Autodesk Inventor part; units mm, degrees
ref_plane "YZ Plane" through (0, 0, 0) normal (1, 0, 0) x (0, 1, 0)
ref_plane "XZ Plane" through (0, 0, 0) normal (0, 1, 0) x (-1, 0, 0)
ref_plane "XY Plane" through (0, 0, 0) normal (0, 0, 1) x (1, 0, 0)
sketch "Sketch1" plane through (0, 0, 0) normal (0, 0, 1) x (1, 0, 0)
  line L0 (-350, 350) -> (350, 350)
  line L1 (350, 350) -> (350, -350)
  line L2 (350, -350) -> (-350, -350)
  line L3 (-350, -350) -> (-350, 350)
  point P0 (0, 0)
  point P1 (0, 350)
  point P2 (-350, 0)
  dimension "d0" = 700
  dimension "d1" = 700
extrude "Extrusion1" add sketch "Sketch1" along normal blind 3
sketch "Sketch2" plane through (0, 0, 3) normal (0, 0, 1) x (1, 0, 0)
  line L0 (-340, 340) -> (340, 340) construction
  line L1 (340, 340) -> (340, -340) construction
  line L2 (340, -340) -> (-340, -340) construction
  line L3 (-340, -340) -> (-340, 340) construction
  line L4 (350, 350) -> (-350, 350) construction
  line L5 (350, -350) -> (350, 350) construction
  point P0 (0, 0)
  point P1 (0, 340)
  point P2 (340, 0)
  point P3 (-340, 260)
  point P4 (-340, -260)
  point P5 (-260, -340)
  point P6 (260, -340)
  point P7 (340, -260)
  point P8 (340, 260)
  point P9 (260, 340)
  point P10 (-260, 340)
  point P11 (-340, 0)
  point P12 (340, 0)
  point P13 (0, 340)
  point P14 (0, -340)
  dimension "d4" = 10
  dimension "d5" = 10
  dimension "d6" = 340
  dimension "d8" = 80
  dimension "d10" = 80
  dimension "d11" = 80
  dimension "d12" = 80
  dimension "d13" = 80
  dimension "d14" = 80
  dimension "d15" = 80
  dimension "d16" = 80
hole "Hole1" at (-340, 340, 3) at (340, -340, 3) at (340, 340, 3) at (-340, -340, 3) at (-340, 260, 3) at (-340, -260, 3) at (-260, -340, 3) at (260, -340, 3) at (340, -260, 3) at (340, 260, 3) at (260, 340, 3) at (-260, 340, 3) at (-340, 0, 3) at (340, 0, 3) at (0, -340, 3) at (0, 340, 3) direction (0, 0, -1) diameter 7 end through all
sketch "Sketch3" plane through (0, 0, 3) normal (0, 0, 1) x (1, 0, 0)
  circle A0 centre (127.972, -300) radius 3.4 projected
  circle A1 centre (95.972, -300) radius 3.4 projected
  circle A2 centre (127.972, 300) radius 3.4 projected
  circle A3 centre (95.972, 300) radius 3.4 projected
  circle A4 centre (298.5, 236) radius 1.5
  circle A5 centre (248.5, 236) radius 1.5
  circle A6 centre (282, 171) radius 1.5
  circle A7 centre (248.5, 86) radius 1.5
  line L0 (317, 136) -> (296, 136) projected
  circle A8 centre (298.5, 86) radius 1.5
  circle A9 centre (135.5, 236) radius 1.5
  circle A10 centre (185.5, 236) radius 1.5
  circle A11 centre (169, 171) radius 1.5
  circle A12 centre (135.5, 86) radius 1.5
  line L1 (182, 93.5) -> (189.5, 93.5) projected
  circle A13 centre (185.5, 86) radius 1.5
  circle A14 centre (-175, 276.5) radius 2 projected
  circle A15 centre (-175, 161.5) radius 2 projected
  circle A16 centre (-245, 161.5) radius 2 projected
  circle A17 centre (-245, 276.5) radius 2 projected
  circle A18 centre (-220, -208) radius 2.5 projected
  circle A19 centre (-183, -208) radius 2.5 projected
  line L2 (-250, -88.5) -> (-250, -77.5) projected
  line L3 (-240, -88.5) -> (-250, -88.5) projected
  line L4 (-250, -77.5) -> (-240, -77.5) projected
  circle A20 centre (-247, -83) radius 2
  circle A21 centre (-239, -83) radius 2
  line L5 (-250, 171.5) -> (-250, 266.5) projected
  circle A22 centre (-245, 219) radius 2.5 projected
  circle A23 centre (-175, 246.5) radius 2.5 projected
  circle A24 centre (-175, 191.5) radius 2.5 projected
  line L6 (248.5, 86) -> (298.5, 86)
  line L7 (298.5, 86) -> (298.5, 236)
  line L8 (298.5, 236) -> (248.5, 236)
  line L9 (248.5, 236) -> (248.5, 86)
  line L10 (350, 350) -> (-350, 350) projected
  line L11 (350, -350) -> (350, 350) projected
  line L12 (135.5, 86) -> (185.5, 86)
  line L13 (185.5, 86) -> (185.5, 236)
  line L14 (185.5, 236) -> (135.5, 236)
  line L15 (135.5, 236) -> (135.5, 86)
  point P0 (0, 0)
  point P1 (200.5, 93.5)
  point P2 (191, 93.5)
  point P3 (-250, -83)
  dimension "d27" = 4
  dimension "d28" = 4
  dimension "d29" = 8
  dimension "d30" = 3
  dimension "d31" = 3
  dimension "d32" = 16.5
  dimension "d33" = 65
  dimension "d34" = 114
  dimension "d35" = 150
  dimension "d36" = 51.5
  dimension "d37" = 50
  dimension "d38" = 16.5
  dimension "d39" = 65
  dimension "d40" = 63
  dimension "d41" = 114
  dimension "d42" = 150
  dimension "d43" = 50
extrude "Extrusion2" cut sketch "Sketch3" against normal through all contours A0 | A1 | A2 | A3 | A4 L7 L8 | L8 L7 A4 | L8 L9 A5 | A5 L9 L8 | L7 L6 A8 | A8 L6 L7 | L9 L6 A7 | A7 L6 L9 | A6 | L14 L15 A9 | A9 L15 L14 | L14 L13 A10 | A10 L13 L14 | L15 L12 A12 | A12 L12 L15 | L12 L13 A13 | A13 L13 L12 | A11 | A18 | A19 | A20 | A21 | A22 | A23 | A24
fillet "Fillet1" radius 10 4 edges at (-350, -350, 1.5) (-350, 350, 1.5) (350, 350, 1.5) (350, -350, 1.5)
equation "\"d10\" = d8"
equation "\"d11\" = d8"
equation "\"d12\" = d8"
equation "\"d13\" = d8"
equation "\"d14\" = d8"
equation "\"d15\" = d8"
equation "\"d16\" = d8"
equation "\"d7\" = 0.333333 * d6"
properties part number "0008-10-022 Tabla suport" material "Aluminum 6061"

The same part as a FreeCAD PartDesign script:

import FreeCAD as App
import Part
import Sketcher
from FreeCAD import Vector
Q = App.Units.Quantity


def edges_at(feature, points):
    """Names of the edges that pass closest to the given points."""
    edges = feature.Shape.Edges
    near = lambda p: min(range(len(edges)), key=lambda i: edges[i].distToShape(Part.Vertex(*p))[0])
    return sorted({f"Edge{near(p) + 1}" for p in points})


def add_polygon(sketch, points):
    """Adds a closed chain of lines whose ends are joined by coincident constraints."""
    first, n = sketch.GeometryCount, len(points)
    for a, b in zip(points, points[1:] + points[:1]):
        sketch.addGeometry(Part.LineSegment(App.Vector(*a, 0), App.Vector(*b, 0)), False)
    for i in range(n):
        sketch.addConstraint(Sketcher.Constraint("Coincident", first + i, 2, first + (i + 1) % n, 1))

doc = App.newDocument("Part")
params = doc.addObject("Spreadsheet::Sheet", "Params")
for row, (alias, value) in enumerate([
    ("sketch1_width", "700 mm"),
    ("pad1_length", "3 mm"),
    ("sketch2_diameter", "7 mm"),
    ("hole_diameter", "7 mm"),
    ("sketch3_diameter", "3 mm"),
    ("sketch3_diameter2", "4 mm"),
    ("sketch3_diameter3", "5 mm"),
    ("sketch3_diameter4", "6.8 mm"),
    ("fillet_radius", "10 mm"),
], start=1):
    params.set(f"A{row}", alias)
    params.set(f"B{row}", "=" + value)
    params.setAlias(f"B{row}", alias)

body = doc.addObject("PartDesign::Body", "Body")

# Sketch on XY plane
sketch1 = doc.addObject("Sketcher::SketchObject", "Sketch")
body.addObject(sketch1)
sketch1.AttachmentSupport = (doc.XY_Plane, [""])
sketch1.MapMode = "FlatFace"
add_polygon(sketch1, [(350, 350), (-350, 350), (-350, -350), (350, -350)])  # lines 0-3
sketch1.addConstraint([
    Sketcher.Constraint("Horizontal", 0),
    Sketcher.Constraint("Vertical", 1),
    Sketcher.Constraint("Horizontal", 2),
    Sketcher.Constraint("Vertical", 3),
    Sketcher.Constraint("Symmetric", 0, 2, 2, 2, -1, 1),
    Sketcher.Constraint("Equal", 2, 1),
    Sketcher.Constraint("DistanceX", 0, 2, 0, 1, Q("700 mm")),
])
sketch1.setExpression("Constraints[10]", "Params.sketch1_width")
pad1 = doc.addObject("PartDesign::Pad", "Pad")
body.addObject(pad1)
pad1.Profile = sketch1
pad1.setExpression("Length", "Params.pad1_length")

# Sketch on XY plane
sketch2 = doc.addObject("Sketcher::SketchObject", "Sketch001")
body.addObject(sketch2)
sketch2.AttachmentSupport = (doc.XY_Plane, [""])
sketch2.MapMode = "FlatFace"
sketch2.AttachmentOffset = App.Placement(Vector(0, 0, 3), App.Rotation())
sketch2.addGeometry([
    Part.Circle(Vector(-340, 340, 0), Vector(0, 0, 1), 3.5),  # 0
    Part.Circle(Vector(340, -340, 0), Vector(0, 0, 1), 3.5),  # 1
    Part.Circle(Vector(340, 340, 0), Vector(0, 0, 1), 3.5),  # 2
    Part.Circle(Vector(-340, -340, 0), Vector(0, 0, 1), 3.5),  # 3
    Part.Circle(Vector(-340, 260, 0), Vector(0, 0, 1), 3.5),  # 4
    Part.Circle(Vector(-340, -260, 0), Vector(0, 0, 1), 3.5),  # 5
    Part.Circle(Vector(-260, -340, 0), Vector(0, 0, 1), 3.5),  # 6
    Part.Circle(Vector(260, -340, 0), Vector(0, 0, 1), 3.5),  # 7
    Part.Circle(Vector(340, -260, 0), Vector(0, 0, 1), 3.5),  # 8
    Part.Circle(Vector(340, 260, 0), Vector(0, 0, 1), 3.5),  # 9
    Part.Circle(Vector(260, 340, 0), Vector(0, 0, 1), 3.5),  # 10
    Part.Circle(Vector(-260, 340, 0), Vector(0, 0, 1), 3.5),  # 11
    Part.Circle(Vector(-340, 0, 0), Vector(0, 0, 1), 3.5),  # 12
    Part.Circle(Vector(340, 0, 0), Vector(0, 0, 1), 3.5),  # 13
    Part.Circle(Vector(0, -340, 0), Vector(0, 0, 1), 3.5),  # 14
    Part.Circle(Vector(0, 340, 0), Vector(0, 0, 1), 3.5),  # 15
], False)
sketch2.addConstraint([
    Sketcher.Constraint("Equal", 0, 1),
    Sketcher.Constraint("Equal", 1, 2),
    Sketcher.Constraint("Equal", 2, 3),
    Sketcher.Constraint("Equal", 3, 4),
    Sketcher.Constraint("Equal", 4, 5),
    Sketcher.Constraint("Equal", 5, 6),
    Sketcher.Constraint("Equal", 6, 7),
    Sketcher.Constraint("Equal", 7, 8),
    Sketcher.Constraint("Equal", 8, 9),
    Sketcher.Constraint("Equal", 9, 10),
    Sketcher.Constraint("Equal", 10, 11),
    Sketcher.Constraint("Equal", 11, 12),
    Sketcher.Constraint("Equal", 12, 13),
    Sketcher.Constraint("Equal", 13, 14),
    Sketcher.Constraint("Equal", 14, 15),
    Sketcher.Constraint("Symmetric", 0, 3, 1, 3, -1, 1),
    Sketcher.Constraint("Symmetric", 2, 3, 3, 3, -1, 1),
    Sketcher.Constraint("Symmetric", 4, 3, 8, 3, -1, 1),
    Sketcher.Constraint("Symmetric", 5, 3, 9, 3, -1, 1),
    Sketcher.Constraint("Symmetric", 6, 3, 10, 3, -1, 1),
    Sketcher.Constraint("Symmetric", 7, 3, 11, 3, -1, 1),
    Sketcher.Constraint("Symmetric", 12, 3, 13, 3, -1, 1),
    Sketcher.Constraint("Symmetric", 14, 3, 15, 3, -1, 1),
    Sketcher.Constraint("Symmetric", 0, 3, 2, 3, -2),
    Sketcher.Constraint("Symmetric", 6, 3, 7, 3, -2),
    Sketcher.Constraint("Symmetric", 5, 3, 8, 3, -2),
    Sketcher.Constraint("PointOnObject", 12, 3, -1),
    Sketcher.Constraint("PointOnObject", 14, 3, -2),
    Sketcher.Constraint("Horizontal", 3, 3, 6, 3),
    Sketcher.Constraint("Horizontal", 7, 3, 14, 3),
    Sketcher.Constraint("Vertical", 3, 3, 4, 3),
    Sketcher.Constraint("Vertical", 5, 3, 12, 3),
    Sketcher.Constraint("Diameter", 0, Q("7 mm")),
    Sketcher.Constraint("DistanceX", 0, 3, -1, 1, Q("340 mm")),
    Sketcher.Constraint("DistanceY", -1, 1, 0, 3, Q("340 mm")),
    Sketcher.Constraint("DistanceY", -1, 1, 4, 3, Q("260 mm")),
    Sketcher.Constraint("DistanceX", 6, 3, -1, 1, Q("260 mm")),
])
sketch2.setExpression("Constraints[32]", "Params.sketch2_diameter")
doc.recompute()
hole = doc.addObject("PartDesign::Hole", "Hole")
body.addObject(hole)
hole.Profile = sketch2
hole.ThreadType = "None"
hole.setExpression("Diameter", "Params.hole_diameter")
hole.DepthType = "ThroughAll"

# Sketch on XY plane
sketch3 = doc.addObject("Sketcher::SketchObject", "Sketch002")
body.addObject(sketch3)
sketch3.AttachmentSupport = (doc.XY_Plane, [""])
sketch3.MapMode = "FlatFace"
sketch3.AttachmentOffset = App.Placement(Vector(0, 0, 3), App.Rotation())
sketch3.addGeometry([
    Part.Circle(Vector(128, -300, 0), Vector(0, 0, 1), 3.4),  # 0
    Part.Circle(Vector(96, -300, 0), Vector(0, 0, 1), 3.4),  # 1
    Part.Circle(Vector(128, 300, 0), Vector(0, 0, 1), 3.4),  # 2
    Part.Circle(Vector(96, 300, 0), Vector(0, 0, 1), 3.4),  # 3
    Part.Circle(Vector(298.5, 236, 0), Vector(0, 0, 1), 1.5),  # 4
    Part.Circle(Vector(248.5, 236, 0), Vector(0, 0, 1), 1.5),  # 5
    Part.Circle(Vector(298.5, 86, 0), Vector(0, 0, 1), 1.5),  # 6
    Part.Circle(Vector(248.5, 86, 0), Vector(0, 0, 1), 1.5),  # 7
    Part.Circle(Vector(282, 171, 0), Vector(0, 0, 1), 1.5),  # 8
    Part.Circle(Vector(135.5, 236, 0), Vector(0, 0, 1), 1.5),  # 9
    Part.Circle(Vector(185.5, 236, 0), Vector(0, 0, 1), 1.5),  # 10
    Part.Circle(Vector(135.5, 86, 0), Vector(0, 0, 1), 1.5),  # 11
    Part.Circle(Vector(185.5, 86, 0), Vector(0, 0, 1), 1.5),  # 12
    Part.Circle(Vector(169, 171, 0), Vector(0, 0, 1), 1.5),  # 13
    Part.Circle(Vector(-220, -208, 0), Vector(0, 0, 1), 2.5),  # 14
    Part.Circle(Vector(-183, -208, 0), Vector(0, 0, 1), 2.5),  # 15
    Part.Circle(Vector(-247, -83, 0), Vector(0, 0, 1), 2),  # 16
    Part.Circle(Vector(-239, -83, 0), Vector(0, 0, 1), 2),  # 17
    Part.Circle(Vector(-245, 219, 0), Vector(0, 0, 1), 2.5),  # 18
    Part.Circle(Vector(-175, 246.5, 0), Vector(0, 0, 1), 2.5),  # 19
    Part.Circle(Vector(-175, 191.5, 0), Vector(0, 0, 1), 2.5),  # 20
], False)
sketch3.addConstraint([
    Sketcher.Constraint("Equal", 0, 1),
    Sketcher.Constraint("Equal", 1, 2),
    Sketcher.Constraint("Equal", 2, 3),
    Sketcher.Constraint("Equal", 4, 5),
    Sketcher.Constraint("Equal", 5, 6),
    Sketcher.Constraint("Equal", 6, 7),
    Sketcher.Constraint("Equal", 7, 8),
    Sketcher.Constraint("Equal", 8, 9),
    Sketcher.Constraint("Equal", 9, 10),
    Sketcher.Constraint("Equal", 10, 11),
    Sketcher.Constraint("Equal", 11, 12),
    Sketcher.Constraint("Equal", 12, 13),
    Sketcher.Constraint("Equal", 14, 15),
    Sketcher.Constraint("Equal", 16, 17),
    Sketcher.Constraint("Equal", 15, 18),
    Sketcher.Constraint("Equal", 18, 19),
    Sketcher.Constraint("Equal", 19, 20),
    Sketcher.Constraint("Symmetric", 0, 3, 2, 3, -1),
    Sketcher.Constraint("Symmetric", 1, 3, 3, 3, -1),
    Sketcher.Constraint("Horizontal", 0, 3, 1, 3),
    Sketcher.Constraint("Horizontal", 4, 3, 5, 3),
    Sketcher.Constraint("Horizontal", 6, 3, 7, 3),
    Sketcher.Constraint("Horizontal", 5, 3, 9, 3),
    Sketcher.Constraint("Horizontal", 9, 3, 10, 3),
    Sketcher.Constraint("Horizontal", 7, 3, 11, 3),
    Sketcher.Constraint("Horizontal", 11, 3, 12, 3),
    Sketcher.Constraint("Horizontal", 8, 3, 13, 3),
    Sketcher.Constraint("Horizontal", 14, 3, 15, 3),
    Sketcher.Constraint("Horizontal", 16, 3, 17, 3),
    Sketcher.Constraint("Vertical", 4, 3, 6, 3),
    Sketcher.Constraint("Vertical", 5, 3, 7, 3),
    Sketcher.Constraint("Vertical", 9, 3, 11, 3),
    Sketcher.Constraint("Vertical", 10, 3, 12, 3),
    Sketcher.Constraint("Vertical", 19, 3, 20, 3),
    Sketcher.Constraint("Diameter", 4, Q("3 mm")),
    Sketcher.Constraint("Diameter", 16, Q("4 mm")),
    Sketcher.Constraint("Diameter", 14, Q("5 mm")),
    Sketcher.Constraint("DistanceX", 5, 3, 4, 3, Q("50 mm")),
    Sketcher.Constraint("DistanceY", 6, 3, 4, 3, Q("150 mm")),
    Sketcher.Constraint("DistanceY", 8, 3, 4, 3, Q("65 mm")),
    Sketcher.Constraint("DistanceX", 9, 3, 10, 3, Q("50 mm")),
    Sketcher.Constraint("DistanceX", 10, 3, 5, 3, Q("63 mm")),
    Sketcher.Constraint("DistanceX", 16, 3, 17, 3, Q("8 mm")),
    Sketcher.Constraint("Diameter", 0, Q("6.8 mm")),
    Sketcher.Constraint("DistanceX", 8, 3, 4, 3, Q("16.5 mm")),
    Sketcher.Constraint("DistanceX", 13, 3, 10, 3, Q("16.5 mm")),
    Sketcher.Constraint("DistanceY", 0, 3, -1, 1, Q("300 mm")),
    Sketcher.Constraint("DistanceY", -1, 1, 4, 3, Q("236 mm")),
    Sketcher.Constraint("DistanceX", -1, 1, 8, 3, Q("282 mm")),
    Sketcher.Constraint("DistanceX", 14, 3, -1, 1, Q("220 mm")),
    Sketcher.Constraint("DistanceY", 14, 3, -1, 1, Q("208 mm")),
    Sketcher.Constraint("DistanceX", 15, 3, -1, 1, Q("183 mm")),
    Sketcher.Constraint("DistanceX", 16, 3, -1, 1, Q("247 mm")),
    Sketcher.Constraint("DistanceY", 16, 3, -1, 1, Q("83 mm")),
    Sketcher.Constraint("DistanceX", 18, 3, -1, 1, Q("245 mm")),
    Sketcher.Constraint("DistanceY", -1, 1, 18, 3, Q("219 mm")),
    Sketcher.Constraint("DistanceX", 19, 3, -1, 1, Q("175 mm")),
    Sketcher.Constraint("DistanceX", 1, 3, 0, 3, Q("32 mm")),
    Sketcher.Constraint("DistanceY", 20, 3, 19, 3, Q("55 mm")),
    Sketcher.Constraint("DistanceY", -1, 1, 19, 3, Q("246.5 mm")),
    Sketcher.Constraint("DistanceX", -1, 1, 0, 3, Q("127.972 mm")),
])
sketch3.setExpression("Constraints[34]", "Params.sketch3_diameter")
sketch3.setExpression("Constraints[35]", "Params.sketch3_diameter2")
sketch3.setExpression("Constraints[36]", "Params.sketch3_diameter3")
sketch3.setExpression("Constraints[43]", "Params.sketch3_diameter4")
pocket1 = doc.addObject("PartDesign::Pocket", "Pocket")
body.addObject(pocket1)
pocket1.Profile = sketch3
pocket1.Type = "ThroughAll"
doc.recompute()

fillet = doc.addObject("PartDesign::Fillet", "Fillet")
body.addObject(fillet)
fillet.Base = (pocket1, edges_at(pocket1, [
    (-350, -350, 1.5),
    (-350, 350, 1.5),
    (350, 350, 1.5),
    (350, -350, 1.5),
]))
fillet.setExpression("Radius", "Params.fillet_radius")

doc.recompute()
